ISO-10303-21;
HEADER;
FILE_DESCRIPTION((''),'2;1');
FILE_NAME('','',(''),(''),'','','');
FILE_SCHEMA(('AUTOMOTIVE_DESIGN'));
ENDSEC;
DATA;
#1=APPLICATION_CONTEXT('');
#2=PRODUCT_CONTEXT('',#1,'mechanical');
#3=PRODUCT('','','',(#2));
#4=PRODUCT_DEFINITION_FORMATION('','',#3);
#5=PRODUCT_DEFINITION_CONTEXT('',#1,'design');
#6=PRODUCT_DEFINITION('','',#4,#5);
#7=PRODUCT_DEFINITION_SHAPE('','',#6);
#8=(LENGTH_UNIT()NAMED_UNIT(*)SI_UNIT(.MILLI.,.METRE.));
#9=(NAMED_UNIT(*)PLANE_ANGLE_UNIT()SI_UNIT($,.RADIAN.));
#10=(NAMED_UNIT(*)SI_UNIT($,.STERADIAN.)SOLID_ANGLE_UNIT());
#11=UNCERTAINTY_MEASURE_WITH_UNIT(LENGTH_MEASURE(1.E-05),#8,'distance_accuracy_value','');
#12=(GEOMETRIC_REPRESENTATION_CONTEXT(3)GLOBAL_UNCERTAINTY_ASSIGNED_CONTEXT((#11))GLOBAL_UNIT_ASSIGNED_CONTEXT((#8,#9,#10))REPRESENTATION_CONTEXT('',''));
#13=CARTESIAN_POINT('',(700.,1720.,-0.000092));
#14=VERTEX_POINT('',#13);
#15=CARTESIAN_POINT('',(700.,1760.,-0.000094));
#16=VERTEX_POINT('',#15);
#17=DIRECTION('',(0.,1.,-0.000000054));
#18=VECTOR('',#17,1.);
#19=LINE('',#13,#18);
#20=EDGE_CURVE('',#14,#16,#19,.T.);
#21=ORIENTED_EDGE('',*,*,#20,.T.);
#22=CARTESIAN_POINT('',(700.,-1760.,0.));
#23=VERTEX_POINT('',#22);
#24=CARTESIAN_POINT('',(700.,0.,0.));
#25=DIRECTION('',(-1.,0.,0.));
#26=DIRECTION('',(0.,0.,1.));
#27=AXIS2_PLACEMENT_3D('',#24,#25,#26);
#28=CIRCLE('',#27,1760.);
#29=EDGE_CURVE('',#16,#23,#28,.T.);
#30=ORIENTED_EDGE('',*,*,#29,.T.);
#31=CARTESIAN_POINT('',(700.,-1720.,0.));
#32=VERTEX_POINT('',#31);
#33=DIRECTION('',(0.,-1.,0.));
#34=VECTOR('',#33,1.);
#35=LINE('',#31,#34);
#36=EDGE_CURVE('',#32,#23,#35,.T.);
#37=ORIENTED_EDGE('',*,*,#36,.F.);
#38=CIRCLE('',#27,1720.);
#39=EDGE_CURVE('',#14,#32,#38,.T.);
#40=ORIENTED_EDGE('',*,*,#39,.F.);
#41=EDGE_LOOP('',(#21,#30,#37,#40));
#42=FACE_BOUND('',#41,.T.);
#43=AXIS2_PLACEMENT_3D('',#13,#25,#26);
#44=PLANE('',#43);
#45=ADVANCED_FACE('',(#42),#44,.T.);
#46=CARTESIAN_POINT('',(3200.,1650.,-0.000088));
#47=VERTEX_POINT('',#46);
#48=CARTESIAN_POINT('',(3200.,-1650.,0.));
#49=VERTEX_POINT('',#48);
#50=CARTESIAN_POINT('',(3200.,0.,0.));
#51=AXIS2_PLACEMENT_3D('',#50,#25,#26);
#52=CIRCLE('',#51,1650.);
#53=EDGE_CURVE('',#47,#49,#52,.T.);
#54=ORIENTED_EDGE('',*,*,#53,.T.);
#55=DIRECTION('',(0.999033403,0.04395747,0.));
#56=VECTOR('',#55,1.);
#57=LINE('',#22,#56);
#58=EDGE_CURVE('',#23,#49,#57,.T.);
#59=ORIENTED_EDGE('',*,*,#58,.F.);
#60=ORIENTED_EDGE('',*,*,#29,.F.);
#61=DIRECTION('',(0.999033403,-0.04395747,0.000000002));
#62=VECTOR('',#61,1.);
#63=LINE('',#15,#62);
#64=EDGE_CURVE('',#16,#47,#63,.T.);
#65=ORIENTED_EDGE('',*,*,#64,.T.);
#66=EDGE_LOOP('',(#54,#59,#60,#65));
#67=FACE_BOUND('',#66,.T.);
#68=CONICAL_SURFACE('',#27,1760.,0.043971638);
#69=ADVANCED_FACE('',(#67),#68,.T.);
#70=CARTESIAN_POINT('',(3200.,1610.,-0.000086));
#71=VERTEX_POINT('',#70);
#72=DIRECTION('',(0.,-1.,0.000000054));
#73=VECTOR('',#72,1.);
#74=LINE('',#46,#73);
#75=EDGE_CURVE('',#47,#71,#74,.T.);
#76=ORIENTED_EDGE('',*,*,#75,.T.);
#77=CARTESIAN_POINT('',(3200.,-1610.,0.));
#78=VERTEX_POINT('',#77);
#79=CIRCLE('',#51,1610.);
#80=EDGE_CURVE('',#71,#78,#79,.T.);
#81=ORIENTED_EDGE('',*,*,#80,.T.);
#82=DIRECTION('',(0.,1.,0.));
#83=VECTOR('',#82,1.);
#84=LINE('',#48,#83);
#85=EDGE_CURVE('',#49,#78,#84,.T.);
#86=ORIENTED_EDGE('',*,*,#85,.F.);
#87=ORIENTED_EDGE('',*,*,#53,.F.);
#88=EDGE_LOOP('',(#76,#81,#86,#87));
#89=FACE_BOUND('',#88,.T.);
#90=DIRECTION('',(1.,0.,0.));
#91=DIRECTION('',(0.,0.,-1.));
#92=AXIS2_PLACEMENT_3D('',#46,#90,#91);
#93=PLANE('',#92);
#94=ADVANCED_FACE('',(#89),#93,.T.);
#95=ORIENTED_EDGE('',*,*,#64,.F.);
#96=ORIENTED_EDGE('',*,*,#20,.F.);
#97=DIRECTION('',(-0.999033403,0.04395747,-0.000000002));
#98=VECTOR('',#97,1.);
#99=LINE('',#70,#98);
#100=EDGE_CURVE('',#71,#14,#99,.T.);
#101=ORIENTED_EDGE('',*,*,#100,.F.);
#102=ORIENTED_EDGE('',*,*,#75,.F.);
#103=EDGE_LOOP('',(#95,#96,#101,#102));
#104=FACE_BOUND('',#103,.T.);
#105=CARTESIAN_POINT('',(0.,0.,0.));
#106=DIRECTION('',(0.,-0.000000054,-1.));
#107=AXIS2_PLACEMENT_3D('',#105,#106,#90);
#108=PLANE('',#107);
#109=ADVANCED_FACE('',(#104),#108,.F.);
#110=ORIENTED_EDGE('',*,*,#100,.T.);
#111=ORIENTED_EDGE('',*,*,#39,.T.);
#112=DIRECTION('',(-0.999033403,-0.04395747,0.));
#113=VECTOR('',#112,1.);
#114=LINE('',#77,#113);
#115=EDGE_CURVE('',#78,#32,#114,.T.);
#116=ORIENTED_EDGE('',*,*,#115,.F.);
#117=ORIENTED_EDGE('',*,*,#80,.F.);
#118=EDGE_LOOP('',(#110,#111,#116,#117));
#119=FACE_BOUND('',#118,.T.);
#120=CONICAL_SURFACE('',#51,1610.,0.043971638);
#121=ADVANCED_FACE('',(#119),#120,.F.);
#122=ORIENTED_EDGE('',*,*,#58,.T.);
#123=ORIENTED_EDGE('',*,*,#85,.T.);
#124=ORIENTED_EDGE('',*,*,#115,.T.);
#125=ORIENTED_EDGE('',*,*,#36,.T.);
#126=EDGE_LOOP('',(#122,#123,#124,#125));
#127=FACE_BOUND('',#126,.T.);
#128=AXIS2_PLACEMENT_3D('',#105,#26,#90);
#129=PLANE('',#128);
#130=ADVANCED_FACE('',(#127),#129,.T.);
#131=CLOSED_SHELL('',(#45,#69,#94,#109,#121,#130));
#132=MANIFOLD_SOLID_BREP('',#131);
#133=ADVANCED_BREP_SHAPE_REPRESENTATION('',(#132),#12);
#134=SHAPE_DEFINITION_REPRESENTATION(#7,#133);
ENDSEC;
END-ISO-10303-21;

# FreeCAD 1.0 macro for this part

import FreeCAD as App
import Part
import Sketcher

doc = App.newDocument("Part")
params = doc.addObject("Spreadsheet::Sheet", "Params")
for row, (alias, value) in enumerate([
    ("sketch1_height", "40 mm"),
    ("revolution_angle", "179.999997 deg"),
], start=1):
    params.set(f"A{row}", alias)
    params.set(f"B{row}", "=" + value)
    params.setAlias(f"B{row}", alias)

body = doc.addObject("PartDesign::Body", "Body")

sketch1 = body.newObject("Sketcher::SketchObject", "Sketch")
sketch1.AttachmentSupport = (doc.getObject("XY_Plane"), [""])
sketch1.MapMode = "FlatFace"
sketch1.addGeometry([
    Part.LineSegment(App.Vector(700, -1720, 0), App.Vector(700, -1760, 0)),
    Part.LineSegment(App.Vector(700, -1760, 0), App.Vector(3200, -1650, 0)),
    Part.LineSegment(App.Vector(3200, -1650, 0), App.Vector(3200, -1610, 0)),
    Part.LineSegment(App.Vector(3200, -1610, 0), App.Vector(700, -1720, 0)),
], False)
sketch1.addConstraint([
    Sketcher.Constraint("Coincident", 0, 2, 1, 1),
    Sketcher.Constraint("Coincident", 1, 2, 2, 1),
    Sketcher.Constraint("Coincident", 2, 2, 3, 1),
    Sketcher.Constraint("Coincident", 3, 2, 0, 1),
    Sketcher.Constraint("Vertical", 0),
    Sketcher.Constraint("Vertical", 2),
    Sketcher.Constraint("Parallel", 1, 3),
    Sketcher.Constraint("DistanceY", 0, 2, 0, 1, 40.0),
    Sketcher.Constraint("DistanceX", -1, 1, 0, 2, 700.0),
    Sketcher.Constraint("DistanceY", 0, 2, -1, 1, 1760.0),
    Sketcher.Constraint("DistanceX", -1, 1, 1, 2, 3200.0),
    Sketcher.Constraint("DistanceY", 1, 2, -1, 1, 1650.0),
])
sketch1.setExpression("Constraints[7]", "Params.sketch1_height")
revolution = body.newObject("PartDesign::Revolution", "Revolution")
revolution.Profile = sketch1
revolution.ReferenceAxis = (sketch1, ["H_Axis"])
revolution.setExpression("Angle", "Params.revolution_angle")

doc.recompute()
